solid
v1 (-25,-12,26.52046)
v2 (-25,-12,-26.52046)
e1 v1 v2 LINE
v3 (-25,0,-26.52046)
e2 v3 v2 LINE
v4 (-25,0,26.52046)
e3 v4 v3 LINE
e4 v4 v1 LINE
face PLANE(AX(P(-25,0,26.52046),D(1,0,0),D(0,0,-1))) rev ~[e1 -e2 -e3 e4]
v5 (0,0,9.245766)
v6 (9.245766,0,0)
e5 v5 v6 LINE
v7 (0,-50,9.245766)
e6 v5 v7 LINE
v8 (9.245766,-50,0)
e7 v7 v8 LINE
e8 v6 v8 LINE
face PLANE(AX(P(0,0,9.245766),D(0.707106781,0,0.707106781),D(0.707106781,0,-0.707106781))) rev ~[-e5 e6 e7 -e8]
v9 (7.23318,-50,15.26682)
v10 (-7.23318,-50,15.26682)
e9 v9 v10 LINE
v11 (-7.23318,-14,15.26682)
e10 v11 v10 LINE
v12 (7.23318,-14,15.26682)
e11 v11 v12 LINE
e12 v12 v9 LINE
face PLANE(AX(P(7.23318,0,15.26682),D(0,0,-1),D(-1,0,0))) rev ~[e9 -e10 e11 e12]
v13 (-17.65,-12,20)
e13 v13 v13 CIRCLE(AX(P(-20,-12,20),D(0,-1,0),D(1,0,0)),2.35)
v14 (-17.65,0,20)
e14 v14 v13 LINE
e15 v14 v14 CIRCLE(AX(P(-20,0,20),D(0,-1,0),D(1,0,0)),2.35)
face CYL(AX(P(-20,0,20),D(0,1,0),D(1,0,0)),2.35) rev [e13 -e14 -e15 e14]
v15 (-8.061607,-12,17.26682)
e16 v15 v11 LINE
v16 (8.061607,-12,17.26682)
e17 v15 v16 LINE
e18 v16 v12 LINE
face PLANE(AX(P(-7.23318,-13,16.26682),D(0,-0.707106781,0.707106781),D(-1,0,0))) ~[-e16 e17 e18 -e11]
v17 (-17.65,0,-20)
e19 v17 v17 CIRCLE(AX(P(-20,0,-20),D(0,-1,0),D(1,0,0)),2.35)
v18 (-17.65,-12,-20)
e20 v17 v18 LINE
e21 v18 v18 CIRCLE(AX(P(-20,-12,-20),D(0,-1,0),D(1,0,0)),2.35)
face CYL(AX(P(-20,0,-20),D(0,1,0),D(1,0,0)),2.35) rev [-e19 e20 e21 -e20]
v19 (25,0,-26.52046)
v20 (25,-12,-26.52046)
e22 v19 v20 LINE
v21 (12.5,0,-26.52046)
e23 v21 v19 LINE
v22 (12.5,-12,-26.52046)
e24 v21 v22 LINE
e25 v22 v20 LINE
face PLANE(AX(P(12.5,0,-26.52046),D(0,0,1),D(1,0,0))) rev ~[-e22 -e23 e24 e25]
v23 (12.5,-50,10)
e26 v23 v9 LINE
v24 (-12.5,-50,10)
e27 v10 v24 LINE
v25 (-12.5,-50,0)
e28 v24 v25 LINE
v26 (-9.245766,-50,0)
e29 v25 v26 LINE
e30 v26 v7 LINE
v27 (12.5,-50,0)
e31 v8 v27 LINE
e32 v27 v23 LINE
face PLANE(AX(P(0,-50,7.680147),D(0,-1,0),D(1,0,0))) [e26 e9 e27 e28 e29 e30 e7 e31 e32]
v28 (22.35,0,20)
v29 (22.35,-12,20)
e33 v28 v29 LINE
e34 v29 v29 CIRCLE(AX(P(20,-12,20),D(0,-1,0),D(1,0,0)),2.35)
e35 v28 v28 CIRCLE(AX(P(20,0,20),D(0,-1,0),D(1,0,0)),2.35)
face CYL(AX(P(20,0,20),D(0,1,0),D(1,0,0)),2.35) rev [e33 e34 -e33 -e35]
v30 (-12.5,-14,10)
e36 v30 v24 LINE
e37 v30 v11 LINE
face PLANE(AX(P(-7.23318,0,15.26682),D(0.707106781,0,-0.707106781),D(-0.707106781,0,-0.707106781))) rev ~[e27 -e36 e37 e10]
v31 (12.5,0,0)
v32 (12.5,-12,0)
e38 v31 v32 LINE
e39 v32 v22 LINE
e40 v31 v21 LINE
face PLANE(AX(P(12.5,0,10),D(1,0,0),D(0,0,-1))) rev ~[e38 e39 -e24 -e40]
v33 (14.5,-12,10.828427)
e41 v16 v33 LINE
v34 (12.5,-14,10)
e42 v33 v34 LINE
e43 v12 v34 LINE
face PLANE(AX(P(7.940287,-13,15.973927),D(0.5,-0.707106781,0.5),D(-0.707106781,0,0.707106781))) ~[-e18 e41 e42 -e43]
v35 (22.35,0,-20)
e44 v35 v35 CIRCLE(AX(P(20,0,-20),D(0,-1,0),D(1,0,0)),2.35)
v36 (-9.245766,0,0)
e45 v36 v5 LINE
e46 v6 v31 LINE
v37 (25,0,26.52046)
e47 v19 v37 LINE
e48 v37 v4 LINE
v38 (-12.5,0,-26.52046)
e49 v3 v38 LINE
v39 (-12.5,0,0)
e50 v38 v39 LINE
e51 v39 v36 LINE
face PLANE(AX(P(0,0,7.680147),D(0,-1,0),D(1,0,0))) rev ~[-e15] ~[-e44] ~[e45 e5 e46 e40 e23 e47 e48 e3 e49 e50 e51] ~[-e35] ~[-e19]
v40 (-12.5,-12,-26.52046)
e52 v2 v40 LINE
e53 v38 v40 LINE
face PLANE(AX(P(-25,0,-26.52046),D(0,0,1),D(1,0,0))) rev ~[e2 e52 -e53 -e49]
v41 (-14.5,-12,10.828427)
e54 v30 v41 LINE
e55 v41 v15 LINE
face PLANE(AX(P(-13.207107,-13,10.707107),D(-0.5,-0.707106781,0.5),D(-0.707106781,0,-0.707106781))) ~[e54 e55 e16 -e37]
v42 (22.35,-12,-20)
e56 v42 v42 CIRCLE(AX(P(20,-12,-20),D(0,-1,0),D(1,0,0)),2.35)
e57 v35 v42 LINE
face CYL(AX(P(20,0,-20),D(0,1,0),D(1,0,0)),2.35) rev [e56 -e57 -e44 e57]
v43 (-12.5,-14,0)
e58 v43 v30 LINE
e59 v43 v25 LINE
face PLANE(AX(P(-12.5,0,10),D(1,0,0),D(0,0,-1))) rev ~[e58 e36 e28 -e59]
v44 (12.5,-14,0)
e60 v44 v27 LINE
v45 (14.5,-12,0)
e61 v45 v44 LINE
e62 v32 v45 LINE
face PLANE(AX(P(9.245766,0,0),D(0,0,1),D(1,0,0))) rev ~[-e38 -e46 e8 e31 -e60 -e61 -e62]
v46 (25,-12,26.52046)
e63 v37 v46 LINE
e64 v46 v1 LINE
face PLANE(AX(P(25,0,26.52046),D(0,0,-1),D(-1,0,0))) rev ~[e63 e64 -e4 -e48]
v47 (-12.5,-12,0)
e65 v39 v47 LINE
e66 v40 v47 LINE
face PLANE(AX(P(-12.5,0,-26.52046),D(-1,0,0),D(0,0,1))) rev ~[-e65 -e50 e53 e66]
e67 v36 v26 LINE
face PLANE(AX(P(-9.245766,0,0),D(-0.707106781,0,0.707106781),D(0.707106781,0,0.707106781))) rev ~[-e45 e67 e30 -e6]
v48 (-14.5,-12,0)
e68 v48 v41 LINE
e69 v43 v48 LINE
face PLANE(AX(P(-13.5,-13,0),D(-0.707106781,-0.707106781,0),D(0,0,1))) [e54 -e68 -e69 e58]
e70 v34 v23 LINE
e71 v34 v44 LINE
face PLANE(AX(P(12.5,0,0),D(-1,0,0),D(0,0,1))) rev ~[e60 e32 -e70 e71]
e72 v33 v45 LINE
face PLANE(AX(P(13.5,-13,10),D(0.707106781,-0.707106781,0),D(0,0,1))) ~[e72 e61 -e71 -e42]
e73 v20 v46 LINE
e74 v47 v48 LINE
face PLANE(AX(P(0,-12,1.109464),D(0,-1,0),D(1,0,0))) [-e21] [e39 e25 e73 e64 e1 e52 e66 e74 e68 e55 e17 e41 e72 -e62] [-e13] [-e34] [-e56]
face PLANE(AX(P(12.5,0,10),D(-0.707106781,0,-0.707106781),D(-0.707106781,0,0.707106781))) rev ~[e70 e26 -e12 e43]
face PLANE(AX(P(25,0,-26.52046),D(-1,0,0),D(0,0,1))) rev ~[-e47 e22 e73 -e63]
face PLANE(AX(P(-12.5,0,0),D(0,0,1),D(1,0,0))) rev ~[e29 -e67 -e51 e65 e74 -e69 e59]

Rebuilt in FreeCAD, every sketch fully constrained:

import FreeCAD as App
import Part
import Sketcher

V = App.Vector
Q = App.Units.Quantity


def edges_at(feature, points):
    """Names of the edges that pass closest to the given points."""
    edges = feature.Shape.Edges
    near = lambda p: min(range(len(edges)), key=lambda i: edges[i].distToShape(Part.Vertex(*p))[0])
    return sorted({f"Edge{near(p) + 1}" for p in points})


def add_polygon(sketch, points):
    """Adds a closed chain of lines whose ends are joined by coincident constraints."""
    first, n = sketch.GeometryCount, len(points)
    for a, b in zip(points, points[1:] + points[:1]):
        sketch.addGeometry(Part.LineSegment(App.Vector(*a, 0), App.Vector(*b, 0)), False)
    for i in range(n):
        sketch.addConstraint(Sketcher.Constraint("Coincident", first + i, 2, first + (i + 1) % n, 1))

doc = App.newDocument("Part")
body = doc.addObject("PartDesign::Body", "Body")

sketch1 = doc.addObject("Sketcher::SketchObject", "Sketch")
body.addObject(sketch1)
sketch1.AttachmentSupport = (doc.XZ_Plane, [""])
sketch1.MapMode = "FlatFace"
add_polygon(sketch1, [(-25, 26.52046), (-25, -26.52046), (-12.5, -26.52046), (-12.5, 10), (12.5, 10), (12.5, -26.52046), (25, -26.52046), (25, 26.52046)])
sketch1.addGeometry(Part.Circle(V(-20, -20, 0), V(0, 0, 1), 2.35), False)
sketch1.addGeometry(Part.Circle(V(20, -20, 0), V(0, 0, 1), 2.35), False)
sketch1.addGeometry(Part.Circle(V(-20, 20, 0), V(0, 0, 1), 2.35), False)
sketch1.addGeometry(Part.Circle(V(20, 20, 0), V(0, 0, 1), 2.35), False)
sketch1.addConstraint([
    Sketcher.Constraint("Vertical", 0),
    Sketcher.Constraint("Horizontal", 1),
    Sketcher.Constraint("Vertical", 2),
    Sketcher.Constraint("Horizontal", 3),
    Sketcher.Constraint("Vertical", 4),
    Sketcher.Constraint("Horizontal", 5),
    Sketcher.Constraint("Vertical", 6),
    Sketcher.Constraint("Horizontal", 7),
    Sketcher.Constraint("Equal", 8, 9),
    Sketcher.Constraint("Equal", 9, 10),
    Sketcher.Constraint("Equal", 10, 11),
    Sketcher.Constraint("Symmetric", 9, 3, 10, 3, -1, 1),
    Sketcher.Constraint("Symmetric", 8, 3, 11, 3, -1, 1),
    Sketcher.Constraint("Symmetric", 0, 2, 6, 2, -1, 1),
    Sketcher.Constraint("Symmetric", 8, 3, 9, 3, -2),
    Sketcher.Constraint("Symmetric", 1, 2, 4, 2, -2),
    Sketcher.Constraint("Diameter", 8, Q("4.7 mm")),
    Sketcher.Constraint("DistanceX", 3, 1, 3, 2, Q("25 mm")),
    Sketcher.Constraint("DistanceX", 7, 2, 7, 1, Q("50 mm")),
    Sketcher.Constraint("DistanceX", 8, 3, -1, 1, Q("20 mm")),
    Sketcher.Constraint("DistanceY", 8, 3, -1, 1, Q("20 mm")),
    Sketcher.Constraint("DistanceY", -1, 1, 2, 2, Q("10 mm")),
    Sketcher.Constraint("DistanceY", 0, 2, 0, 1, Q("53.04092 mm")),
])
pad1 = doc.addObject("PartDesign::Pad", "Pad")
body.addObject(pad1)
pad1.Profile = sketch1
pad1.Length = 12

sketch2 = doc.addObject("Sketcher::SketchObject", "Sketch001")
body.addObject(sketch2)
sketch2.AttachmentSupport = (doc.XZ_Plane, [""])
sketch2.MapMode = "FlatFace"
add_polygon(sketch2, [(-12.5, 0), (-9.245766, 0), (0, 9.245766), (9.245766, 0), (12.5, 0), (12.5, 10), (7.23318, 15.26682), (-7.23318, 15.26682), (-12.5, 10)])
sketch2.addConstraint([
    Sketcher.Constraint("Horizontal", 0),
    Sketcher.Constraint("Horizontal", 3),
    Sketcher.Constraint("Vertical", 4),
    Sketcher.Constraint("Horizontal", 6),
    Sketcher.Constraint("Vertical", 8),
    Sketcher.Constraint("Symmetric", 0, 2, 2, 2, -1, 1),
    Sketcher.Constraint("Symmetric", 4, 2, 7, 2, -2),
    Sketcher.Constraint("PointOnObject", 0, 2, -1),
    Sketcher.Constraint("PointOnObject", 1, 2, -2),
    Sketcher.Constraint("Perpendicular", 1, 2),
    Sketcher.Constraint("Parallel", 2, 5),
    Sketcher.Constraint("Perpendicular", 5, 7),
    Sketcher.Constraint("DistanceY", 4, 1, 4, 2, Q("10 mm")),
    Sketcher.Constraint("DistanceX", -1, 1, 3, 2, Q("12.5 mm")),
    Sketcher.Constraint("DistanceX", 6, 2, 6, 1, Q("14.46636 mm")),
    Sketcher.Constraint("DistanceX", 0, 1, 0, 2, Q("3.254234 mm")),
])
pad2 = doc.addObject("PartDesign::Pad", "Pad001")
body.addObject(pad2)
pad2.Profile = sketch2
pad2.Length = 50
doc.recompute()

chamfer = doc.addObject("PartDesign::Chamfer", "Chamfer")
body.addObject(chamfer)
chamfer.Base = (pad2, edges_at(pad2, [
    (-12.5, -12, 5),
    (-9.867, -12, 12.633),
    (0, -12, 15.267),
    (9.867, -12, 12.633),
    (12.5, -12, 5),
]))
chamfer.Size = 2

doc.recompute()
